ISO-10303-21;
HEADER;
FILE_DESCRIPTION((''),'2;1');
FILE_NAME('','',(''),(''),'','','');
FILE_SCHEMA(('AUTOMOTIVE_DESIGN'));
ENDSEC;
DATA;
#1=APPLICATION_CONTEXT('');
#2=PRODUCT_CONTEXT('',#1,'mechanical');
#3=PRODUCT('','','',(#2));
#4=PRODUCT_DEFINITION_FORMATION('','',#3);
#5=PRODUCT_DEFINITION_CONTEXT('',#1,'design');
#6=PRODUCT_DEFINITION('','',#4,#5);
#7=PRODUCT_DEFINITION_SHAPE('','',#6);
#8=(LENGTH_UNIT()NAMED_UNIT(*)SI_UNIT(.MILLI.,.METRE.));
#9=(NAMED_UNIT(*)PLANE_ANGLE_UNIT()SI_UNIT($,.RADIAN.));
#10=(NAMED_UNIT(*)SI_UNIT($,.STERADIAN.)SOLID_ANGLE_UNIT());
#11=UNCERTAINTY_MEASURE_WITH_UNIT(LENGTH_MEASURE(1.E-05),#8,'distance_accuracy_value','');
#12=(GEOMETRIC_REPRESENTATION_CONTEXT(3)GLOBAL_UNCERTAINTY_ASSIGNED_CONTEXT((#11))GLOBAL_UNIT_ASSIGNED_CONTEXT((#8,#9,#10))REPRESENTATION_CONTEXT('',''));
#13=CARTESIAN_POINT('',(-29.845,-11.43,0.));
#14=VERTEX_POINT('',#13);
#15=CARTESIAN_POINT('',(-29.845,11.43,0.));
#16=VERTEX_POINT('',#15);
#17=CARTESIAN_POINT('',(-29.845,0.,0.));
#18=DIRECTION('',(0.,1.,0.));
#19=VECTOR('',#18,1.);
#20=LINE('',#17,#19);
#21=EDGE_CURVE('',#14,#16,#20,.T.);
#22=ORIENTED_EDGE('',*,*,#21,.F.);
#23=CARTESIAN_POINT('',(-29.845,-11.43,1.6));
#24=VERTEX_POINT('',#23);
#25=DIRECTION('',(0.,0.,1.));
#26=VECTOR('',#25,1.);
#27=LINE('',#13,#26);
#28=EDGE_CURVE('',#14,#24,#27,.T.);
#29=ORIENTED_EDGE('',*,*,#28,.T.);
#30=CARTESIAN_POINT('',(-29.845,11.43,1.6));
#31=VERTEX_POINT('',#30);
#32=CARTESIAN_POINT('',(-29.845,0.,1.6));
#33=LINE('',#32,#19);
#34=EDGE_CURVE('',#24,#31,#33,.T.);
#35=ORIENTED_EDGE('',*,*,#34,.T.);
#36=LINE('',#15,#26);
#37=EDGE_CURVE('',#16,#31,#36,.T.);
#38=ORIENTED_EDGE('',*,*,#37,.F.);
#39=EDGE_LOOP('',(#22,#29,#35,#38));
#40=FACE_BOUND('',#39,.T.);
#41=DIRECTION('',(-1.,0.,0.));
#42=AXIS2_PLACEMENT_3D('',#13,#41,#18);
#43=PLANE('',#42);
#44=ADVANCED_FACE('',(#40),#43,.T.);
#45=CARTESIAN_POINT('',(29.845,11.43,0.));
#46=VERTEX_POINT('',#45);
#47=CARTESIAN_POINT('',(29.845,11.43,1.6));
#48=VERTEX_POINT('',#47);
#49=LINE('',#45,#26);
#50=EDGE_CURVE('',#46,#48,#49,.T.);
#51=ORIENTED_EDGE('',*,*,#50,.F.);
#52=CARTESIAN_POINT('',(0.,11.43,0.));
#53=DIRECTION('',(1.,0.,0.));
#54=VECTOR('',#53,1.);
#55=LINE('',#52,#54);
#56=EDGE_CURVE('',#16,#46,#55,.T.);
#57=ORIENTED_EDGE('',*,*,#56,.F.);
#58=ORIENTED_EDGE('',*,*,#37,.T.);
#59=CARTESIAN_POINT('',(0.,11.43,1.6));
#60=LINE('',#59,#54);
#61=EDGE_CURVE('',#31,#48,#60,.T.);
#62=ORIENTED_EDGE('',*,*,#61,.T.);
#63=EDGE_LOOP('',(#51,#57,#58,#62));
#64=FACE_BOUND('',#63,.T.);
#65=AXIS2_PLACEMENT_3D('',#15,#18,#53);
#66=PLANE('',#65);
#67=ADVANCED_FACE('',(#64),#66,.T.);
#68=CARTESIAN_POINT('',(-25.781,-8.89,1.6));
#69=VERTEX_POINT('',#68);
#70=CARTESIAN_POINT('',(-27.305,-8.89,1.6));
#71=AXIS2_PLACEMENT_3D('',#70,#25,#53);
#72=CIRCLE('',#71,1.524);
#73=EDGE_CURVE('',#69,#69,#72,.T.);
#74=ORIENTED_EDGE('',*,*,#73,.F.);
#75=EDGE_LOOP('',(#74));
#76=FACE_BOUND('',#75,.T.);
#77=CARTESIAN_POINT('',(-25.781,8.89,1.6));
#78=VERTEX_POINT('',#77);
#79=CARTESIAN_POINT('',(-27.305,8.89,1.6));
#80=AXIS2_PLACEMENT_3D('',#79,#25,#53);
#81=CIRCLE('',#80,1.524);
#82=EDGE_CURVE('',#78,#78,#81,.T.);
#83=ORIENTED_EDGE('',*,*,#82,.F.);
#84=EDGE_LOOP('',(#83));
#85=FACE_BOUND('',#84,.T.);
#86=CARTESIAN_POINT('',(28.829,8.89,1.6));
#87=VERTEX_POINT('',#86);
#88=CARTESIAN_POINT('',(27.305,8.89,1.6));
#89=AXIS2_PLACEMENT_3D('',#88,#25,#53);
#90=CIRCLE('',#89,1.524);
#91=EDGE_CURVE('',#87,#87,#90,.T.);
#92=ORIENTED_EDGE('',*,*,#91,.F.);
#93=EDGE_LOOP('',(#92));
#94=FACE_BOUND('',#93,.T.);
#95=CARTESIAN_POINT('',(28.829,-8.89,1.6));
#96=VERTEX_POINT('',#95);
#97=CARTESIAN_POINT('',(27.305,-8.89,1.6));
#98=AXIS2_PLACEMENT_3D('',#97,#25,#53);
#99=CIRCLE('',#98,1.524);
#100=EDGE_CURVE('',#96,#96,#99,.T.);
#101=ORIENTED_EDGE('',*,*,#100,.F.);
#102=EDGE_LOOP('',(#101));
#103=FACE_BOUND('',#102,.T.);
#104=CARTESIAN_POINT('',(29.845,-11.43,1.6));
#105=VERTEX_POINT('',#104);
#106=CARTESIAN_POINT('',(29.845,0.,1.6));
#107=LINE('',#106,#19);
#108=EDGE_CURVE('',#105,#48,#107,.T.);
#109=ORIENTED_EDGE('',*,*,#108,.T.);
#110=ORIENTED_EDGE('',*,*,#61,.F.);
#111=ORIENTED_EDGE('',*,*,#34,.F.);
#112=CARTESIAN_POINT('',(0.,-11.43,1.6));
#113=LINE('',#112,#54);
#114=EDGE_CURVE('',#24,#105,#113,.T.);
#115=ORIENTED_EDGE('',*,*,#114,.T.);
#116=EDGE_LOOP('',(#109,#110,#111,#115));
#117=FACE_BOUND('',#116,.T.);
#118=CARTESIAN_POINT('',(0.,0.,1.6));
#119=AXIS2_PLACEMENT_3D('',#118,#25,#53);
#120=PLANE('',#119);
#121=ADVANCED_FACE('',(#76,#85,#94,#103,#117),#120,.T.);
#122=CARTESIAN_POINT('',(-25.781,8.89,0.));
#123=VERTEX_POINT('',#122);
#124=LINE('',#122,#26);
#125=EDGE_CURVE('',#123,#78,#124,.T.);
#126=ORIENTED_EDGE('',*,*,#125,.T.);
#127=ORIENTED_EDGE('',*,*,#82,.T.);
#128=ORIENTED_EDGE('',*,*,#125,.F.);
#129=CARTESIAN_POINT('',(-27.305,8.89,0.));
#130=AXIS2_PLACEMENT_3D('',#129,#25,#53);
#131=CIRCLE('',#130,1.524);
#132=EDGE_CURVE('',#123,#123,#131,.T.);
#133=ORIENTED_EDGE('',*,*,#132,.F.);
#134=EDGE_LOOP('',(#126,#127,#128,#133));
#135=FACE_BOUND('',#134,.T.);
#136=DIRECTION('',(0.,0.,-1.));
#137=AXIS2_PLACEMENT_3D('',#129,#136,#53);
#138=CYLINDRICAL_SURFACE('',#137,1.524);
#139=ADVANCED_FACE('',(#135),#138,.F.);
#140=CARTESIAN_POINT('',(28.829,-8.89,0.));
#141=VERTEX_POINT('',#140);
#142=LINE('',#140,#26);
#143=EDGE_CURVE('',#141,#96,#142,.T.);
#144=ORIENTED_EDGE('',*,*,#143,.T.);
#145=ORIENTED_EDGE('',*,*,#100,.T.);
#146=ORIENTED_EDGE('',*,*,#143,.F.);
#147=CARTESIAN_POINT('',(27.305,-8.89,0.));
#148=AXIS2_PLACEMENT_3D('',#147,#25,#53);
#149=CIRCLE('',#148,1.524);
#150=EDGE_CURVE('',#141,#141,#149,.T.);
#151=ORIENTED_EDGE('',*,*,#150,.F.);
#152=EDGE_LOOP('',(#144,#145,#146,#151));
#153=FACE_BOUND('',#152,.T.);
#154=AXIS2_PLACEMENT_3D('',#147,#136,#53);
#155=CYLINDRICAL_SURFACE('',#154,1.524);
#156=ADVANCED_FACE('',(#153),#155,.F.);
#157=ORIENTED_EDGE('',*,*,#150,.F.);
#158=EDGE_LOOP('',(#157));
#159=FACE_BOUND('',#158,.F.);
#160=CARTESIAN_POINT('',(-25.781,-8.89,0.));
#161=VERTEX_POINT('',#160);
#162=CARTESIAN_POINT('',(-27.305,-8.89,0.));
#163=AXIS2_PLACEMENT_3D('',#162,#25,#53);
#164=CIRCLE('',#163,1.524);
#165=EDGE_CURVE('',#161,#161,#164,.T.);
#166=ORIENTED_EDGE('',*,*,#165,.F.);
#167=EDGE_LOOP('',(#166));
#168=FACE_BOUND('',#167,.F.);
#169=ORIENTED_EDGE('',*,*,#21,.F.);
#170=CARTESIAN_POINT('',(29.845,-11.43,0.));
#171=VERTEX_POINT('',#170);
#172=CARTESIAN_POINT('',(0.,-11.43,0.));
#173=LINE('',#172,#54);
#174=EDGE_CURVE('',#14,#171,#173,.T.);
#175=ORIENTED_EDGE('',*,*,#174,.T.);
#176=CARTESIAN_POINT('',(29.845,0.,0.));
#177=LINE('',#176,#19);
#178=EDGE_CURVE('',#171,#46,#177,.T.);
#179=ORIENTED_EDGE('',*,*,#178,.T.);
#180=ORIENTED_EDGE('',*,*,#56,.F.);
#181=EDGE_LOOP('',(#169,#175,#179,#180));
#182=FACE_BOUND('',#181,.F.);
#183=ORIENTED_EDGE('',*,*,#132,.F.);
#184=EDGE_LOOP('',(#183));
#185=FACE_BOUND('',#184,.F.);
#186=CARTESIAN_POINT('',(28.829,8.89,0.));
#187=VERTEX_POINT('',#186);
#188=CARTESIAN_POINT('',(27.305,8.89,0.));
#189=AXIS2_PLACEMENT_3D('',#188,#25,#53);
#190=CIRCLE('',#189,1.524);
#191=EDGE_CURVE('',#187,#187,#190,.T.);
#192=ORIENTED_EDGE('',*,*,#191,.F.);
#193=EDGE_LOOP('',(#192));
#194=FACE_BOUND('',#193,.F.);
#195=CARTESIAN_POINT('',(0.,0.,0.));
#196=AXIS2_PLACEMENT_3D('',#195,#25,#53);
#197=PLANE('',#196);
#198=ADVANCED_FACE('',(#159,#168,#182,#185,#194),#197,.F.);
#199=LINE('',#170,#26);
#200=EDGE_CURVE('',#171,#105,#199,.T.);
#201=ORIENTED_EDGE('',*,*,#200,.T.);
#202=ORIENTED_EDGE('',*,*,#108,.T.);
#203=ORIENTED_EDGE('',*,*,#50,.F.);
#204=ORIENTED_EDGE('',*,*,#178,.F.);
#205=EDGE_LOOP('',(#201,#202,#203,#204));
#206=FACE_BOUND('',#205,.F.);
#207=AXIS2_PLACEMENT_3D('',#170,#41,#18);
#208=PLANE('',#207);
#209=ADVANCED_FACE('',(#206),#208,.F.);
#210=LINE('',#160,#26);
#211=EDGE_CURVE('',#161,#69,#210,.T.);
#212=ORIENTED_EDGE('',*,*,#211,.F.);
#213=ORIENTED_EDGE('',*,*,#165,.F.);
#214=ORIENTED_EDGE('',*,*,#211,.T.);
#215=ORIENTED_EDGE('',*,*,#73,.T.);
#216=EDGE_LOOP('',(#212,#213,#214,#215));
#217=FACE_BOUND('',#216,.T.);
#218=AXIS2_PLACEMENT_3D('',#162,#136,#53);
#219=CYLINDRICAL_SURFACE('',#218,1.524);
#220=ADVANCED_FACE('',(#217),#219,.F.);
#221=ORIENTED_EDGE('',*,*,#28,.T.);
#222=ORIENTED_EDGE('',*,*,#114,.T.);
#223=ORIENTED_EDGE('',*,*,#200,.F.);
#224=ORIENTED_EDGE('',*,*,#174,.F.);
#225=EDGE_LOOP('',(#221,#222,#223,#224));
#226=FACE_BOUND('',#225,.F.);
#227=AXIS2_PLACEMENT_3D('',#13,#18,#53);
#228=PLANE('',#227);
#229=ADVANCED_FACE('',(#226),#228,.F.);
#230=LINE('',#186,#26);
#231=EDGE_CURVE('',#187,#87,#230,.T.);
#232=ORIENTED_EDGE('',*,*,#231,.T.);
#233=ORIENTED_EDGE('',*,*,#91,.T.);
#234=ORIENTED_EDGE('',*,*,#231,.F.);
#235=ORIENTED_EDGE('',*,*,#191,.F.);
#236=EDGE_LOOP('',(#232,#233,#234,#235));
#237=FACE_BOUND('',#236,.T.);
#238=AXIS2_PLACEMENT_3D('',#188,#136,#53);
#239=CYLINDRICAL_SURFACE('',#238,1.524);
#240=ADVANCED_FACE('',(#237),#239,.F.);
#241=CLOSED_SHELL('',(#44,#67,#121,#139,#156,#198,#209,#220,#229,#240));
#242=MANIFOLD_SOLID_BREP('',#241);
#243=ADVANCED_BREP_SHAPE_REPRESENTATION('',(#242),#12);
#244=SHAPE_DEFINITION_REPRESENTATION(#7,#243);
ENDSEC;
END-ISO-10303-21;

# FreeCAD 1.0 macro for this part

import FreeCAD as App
import Part
import Sketcher

V = App.Vector
Q = App.Units.Quantity

doc = App.newDocument("Part")
body = doc.addObject("PartDesign::Body", "Body")

sketch1 = body.newObject("Sketcher::SketchObject", "Sketch")
sketch1.AttachmentSupport = (doc.getObject("XY_Plane"), [""])
sketch1.MapMode = "FlatFace"
sketch1.addGeometry(Part.LineSegment(V(-29.8, 11.4, 0), V(-29.8, -11.4, 0)), False)
sketch1.addGeometry(Part.LineSegment(V(-29.8, -11.4, 0), V(29.8, -11.4, 0)), False)
sketch1.addGeometry(Part.LineSegment(V(29.8, -11.4, 0), V(29.8, 11.4, 0)), False)
sketch1.addGeometry(Part.LineSegment(V(29.8, 11.4, 0), V(-29.8, 11.4, 0)), False)
sketch1.addGeometry(Part.Circle(V(-27.3, -8.9, 0), V(0, 0, 1), 1.5), False)
sketch1.addGeometry(Part.Circle(V(27.3, -8.9, 0), V(0, 0, 1), 1.5), False)
sketch1.addGeometry(Part.Circle(V(-27.3, 8.9, 0), V(0, 0, 1), 1.5), False)
sketch1.addGeometry(Part.Circle(V(27.3, 8.9, 0), V(0, 0, 1), 1.5), False)
sketch1.addConstraint(Sketcher.Constraint("Coincident", 0, 2, 1, 1))
sketch1.addConstraint(Sketcher.Constraint("Coincident", 1, 2, 2, 1))
sketch1.addConstraint(Sketcher.Constraint("Coincident", 2, 2, 3, 1))
sketch1.addConstraint(Sketcher.Constraint("Coincident", 3, 2, 0, 1))
sketch1.addConstraint(Sketcher.Constraint("Vertical", 0))
sketch1.addConstraint(Sketcher.Constraint("Horizontal", 1))
sketch1.addConstraint(Sketcher.Constraint("Vertical", 2))
sketch1.addConstraint(Sketcher.Constraint("Horizontal", 3))
sketch1.addConstraint(Sketcher.Constraint("Equal", 4, 5))
sketch1.addConstraint(Sketcher.Constraint("Equal", 5, 6))
sketch1.addConstraint(Sketcher.Constraint("Equal", 6, 7))
sketch1.addConstraint(Sketcher.Constraint("Symmetric", 5, 3, 6, 3, -1, 1))
sketch1.addConstraint(Sketcher.Constraint("Symmetric", 4, 3, 7, 3, -1, 1))
sketch1.addConstraint(Sketcher.Constraint("Symmetric", 0, 2, 2, 2, -1, 1))
sketch1.addConstraint(Sketcher.Constraint("Symmetric", 4, 3, 5, 3, -2))
sketch1.addConstraint(Sketcher.Constraint("Diameter", 4, Q("0.12 in")))
sketch1.addConstraint(Sketcher.Constraint("DistanceY", 0, 2, 0, 1, Q("0.9 in")))
sketch1.addConstraint(Sketcher.Constraint("DistanceX", 1, 1, 1, 2, Q("2.35 in")))
sketch1.addConstraint(Sketcher.Constraint("DistanceY", 4, 3, 6, 3, Q("0.7 in")))
sketch1.addConstraint(Sketcher.Constraint("DistanceX", 0, 2, 4, 3, Q("0.1 in")))
pad1 = body.newObject("PartDesign::Pad", "Pad")
pad1.Profile = sketch1
pad1.Length = 1.6

doc.recompute()
